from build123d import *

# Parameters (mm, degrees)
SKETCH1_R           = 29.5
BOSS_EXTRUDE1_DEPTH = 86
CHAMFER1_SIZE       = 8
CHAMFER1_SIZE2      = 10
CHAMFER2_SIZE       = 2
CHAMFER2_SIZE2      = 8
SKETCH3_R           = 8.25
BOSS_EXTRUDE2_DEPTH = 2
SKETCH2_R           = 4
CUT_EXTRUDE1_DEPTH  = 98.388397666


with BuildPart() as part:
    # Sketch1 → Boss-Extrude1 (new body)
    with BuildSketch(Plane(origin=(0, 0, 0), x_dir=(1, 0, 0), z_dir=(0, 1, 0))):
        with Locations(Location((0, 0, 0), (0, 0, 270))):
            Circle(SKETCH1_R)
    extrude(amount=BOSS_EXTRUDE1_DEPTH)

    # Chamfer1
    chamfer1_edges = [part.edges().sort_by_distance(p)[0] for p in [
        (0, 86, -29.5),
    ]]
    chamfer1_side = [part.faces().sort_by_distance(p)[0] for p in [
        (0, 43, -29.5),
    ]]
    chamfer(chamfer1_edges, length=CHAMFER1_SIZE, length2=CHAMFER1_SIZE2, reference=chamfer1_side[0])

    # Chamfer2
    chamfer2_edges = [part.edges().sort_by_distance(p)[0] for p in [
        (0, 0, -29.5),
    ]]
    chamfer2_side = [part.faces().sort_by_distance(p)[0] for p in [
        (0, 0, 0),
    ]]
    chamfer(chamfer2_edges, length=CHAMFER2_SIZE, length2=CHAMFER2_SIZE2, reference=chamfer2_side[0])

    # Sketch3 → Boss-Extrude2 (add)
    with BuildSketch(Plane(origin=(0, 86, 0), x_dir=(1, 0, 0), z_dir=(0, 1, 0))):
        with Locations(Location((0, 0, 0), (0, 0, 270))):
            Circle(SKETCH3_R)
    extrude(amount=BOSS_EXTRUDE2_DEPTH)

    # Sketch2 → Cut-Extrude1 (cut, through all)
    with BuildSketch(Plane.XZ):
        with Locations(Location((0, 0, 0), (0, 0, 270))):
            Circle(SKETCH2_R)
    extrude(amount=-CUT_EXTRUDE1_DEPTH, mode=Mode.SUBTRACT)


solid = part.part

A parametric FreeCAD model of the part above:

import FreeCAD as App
import Part
import Sketcher


def edges_at(feature, points):
    """Names of the edges that pass closest to the given points."""
    edges = feature.Shape.Edges
    near = lambda p: min(range(len(edges)), key=lambda i: edges[i].distToShape(Part.Vertex(*p))[0])
    return sorted({f"Edge{near(p) + 1}" for p in points})

doc = App.newDocument("Part")
params = doc.addObject("Spreadsheet::Sheet", "Params")
for row, (alias, value) in enumerate([
    ("sketch1_diameter", "59 mm"),
    ("pad1_length", "86 mm"),
    ("chamfer_size", "8 mm"),
    ("chamfer_size2", "10 mm"),
    ("chamfer2_size", "2 mm"),
    ("chamfer2_size2", "8 mm"),
    ("sketch2_diameter", "16.5 mm"),
    ("pad2_length", "2 mm"),
    ("sketch3_diameter", "8 mm"),
], start=1):
    params.set(f"A{row}", alias)
    params.set(f"B{row}", "=" + value)
    params.setAlias(f"B{row}", alias)

body = doc.addObject("PartDesign::Body", "Body")

sketch1 = body.newObject("Sketcher::SketchObject", "Sketch")
sketch1.AttachmentSupport = (doc.getObject("XZ_Plane"), [""])
sketch1.MapMode = "FlatFace"
sketch1.addGeometry(Part.Circle(App.Vector(0, 0, 0), App.Vector(0, 0, 1), 30), False)
sketch1.addConstraint([
    Sketcher.Constraint("Coincident", 0, 3, -1, 1),
    Sketcher.Constraint("Diameter", 0, 59.0),
])
sketch1.setExpression("Constraints[1]", "Params.sketch1_diameter")
pad1 = body.newObject("PartDesign::Pad", "Pad")
pad1.Profile = sketch1
pad1.setExpression("Length", "Params.pad1_length")
pad1.Reversed = True
doc.recompute()

chamfer = body.newObject("PartDesign::Chamfer", "Chamfer")
chamfer.Base = (pad1, edges_at(pad1, [(0, 86, -29.5)]))
chamfer.ChamferType = "Two distances"
chamfer.setExpression("Size", "Params.chamfer_size")
chamfer.setExpression("Size2", "Params.chamfer_size2")
doc.recompute()

chamfer2 = body.newObject("PartDesign::Chamfer", "Chamfer001")
chamfer2.Base = (chamfer, edges_at(chamfer, [(0, 0, -29.5)]))
chamfer2.ChamferType = "Two distances"
chamfer2.setExpression("Size", "Params.chamfer2_size")
chamfer2.setExpression("Size2", "Params.chamfer2_size2")
chamfer2.FlipDirection = True

sketch2 = body.newObject("Sketcher::SketchObject", "Sketch001")
sketch2.AttachmentSupport = (doc.getObject("XZ_Plane"), [""])
sketch2.MapMode = "FlatFace"
sketch2.AttachmentOffset = App.Placement(App.Vector(0, 0, -86), App.Rotation())
sketch2.addGeometry(Part.Circle(App.Vector(0, 0, 0), App.Vector(0, 0, 1), 8), False)
sketch2.addConstraint([
    Sketcher.Constraint("Coincident", 0, 3, -1, 1),
    Sketcher.Constraint("Diameter", 0, 16.5),
])
sketch2.setExpression("Constraints[1]", "Params.sketch2_diameter")
pad2 = body.newObject("PartDesign::Pad", "Pad001")
pad2.Profile = sketch2
pad2.setExpression("Length", "Params.pad2_length")
pad2.Reversed = True

sketch3 = body.newObject("Sketcher::SketchObject", "Sketch002")
sketch3.AttachmentSupport = (doc.getObject("XZ_Plane"), [""])
sketch3.MapMode = "FlatFace"
sketch3.addGeometry(Part.Circle(App.Vector(0, 0, 0), App.Vector(0, 0, 1), 4), False)
sketch3.addConstraint([
    Sketcher.Constraint("Coincident", 0, 3, -1, 1),
    Sketcher.Constraint("Diameter", 0, 8.0),
])
sketch3.setExpression("Constraints[1]", "Params.sketch3_diameter")
pocket1 = body.newObject("PartDesign::Pocket", "Pocket")
pocket1.Profile = sketch3
pocket1.Type = "ThroughAll"

doc.recompute()
